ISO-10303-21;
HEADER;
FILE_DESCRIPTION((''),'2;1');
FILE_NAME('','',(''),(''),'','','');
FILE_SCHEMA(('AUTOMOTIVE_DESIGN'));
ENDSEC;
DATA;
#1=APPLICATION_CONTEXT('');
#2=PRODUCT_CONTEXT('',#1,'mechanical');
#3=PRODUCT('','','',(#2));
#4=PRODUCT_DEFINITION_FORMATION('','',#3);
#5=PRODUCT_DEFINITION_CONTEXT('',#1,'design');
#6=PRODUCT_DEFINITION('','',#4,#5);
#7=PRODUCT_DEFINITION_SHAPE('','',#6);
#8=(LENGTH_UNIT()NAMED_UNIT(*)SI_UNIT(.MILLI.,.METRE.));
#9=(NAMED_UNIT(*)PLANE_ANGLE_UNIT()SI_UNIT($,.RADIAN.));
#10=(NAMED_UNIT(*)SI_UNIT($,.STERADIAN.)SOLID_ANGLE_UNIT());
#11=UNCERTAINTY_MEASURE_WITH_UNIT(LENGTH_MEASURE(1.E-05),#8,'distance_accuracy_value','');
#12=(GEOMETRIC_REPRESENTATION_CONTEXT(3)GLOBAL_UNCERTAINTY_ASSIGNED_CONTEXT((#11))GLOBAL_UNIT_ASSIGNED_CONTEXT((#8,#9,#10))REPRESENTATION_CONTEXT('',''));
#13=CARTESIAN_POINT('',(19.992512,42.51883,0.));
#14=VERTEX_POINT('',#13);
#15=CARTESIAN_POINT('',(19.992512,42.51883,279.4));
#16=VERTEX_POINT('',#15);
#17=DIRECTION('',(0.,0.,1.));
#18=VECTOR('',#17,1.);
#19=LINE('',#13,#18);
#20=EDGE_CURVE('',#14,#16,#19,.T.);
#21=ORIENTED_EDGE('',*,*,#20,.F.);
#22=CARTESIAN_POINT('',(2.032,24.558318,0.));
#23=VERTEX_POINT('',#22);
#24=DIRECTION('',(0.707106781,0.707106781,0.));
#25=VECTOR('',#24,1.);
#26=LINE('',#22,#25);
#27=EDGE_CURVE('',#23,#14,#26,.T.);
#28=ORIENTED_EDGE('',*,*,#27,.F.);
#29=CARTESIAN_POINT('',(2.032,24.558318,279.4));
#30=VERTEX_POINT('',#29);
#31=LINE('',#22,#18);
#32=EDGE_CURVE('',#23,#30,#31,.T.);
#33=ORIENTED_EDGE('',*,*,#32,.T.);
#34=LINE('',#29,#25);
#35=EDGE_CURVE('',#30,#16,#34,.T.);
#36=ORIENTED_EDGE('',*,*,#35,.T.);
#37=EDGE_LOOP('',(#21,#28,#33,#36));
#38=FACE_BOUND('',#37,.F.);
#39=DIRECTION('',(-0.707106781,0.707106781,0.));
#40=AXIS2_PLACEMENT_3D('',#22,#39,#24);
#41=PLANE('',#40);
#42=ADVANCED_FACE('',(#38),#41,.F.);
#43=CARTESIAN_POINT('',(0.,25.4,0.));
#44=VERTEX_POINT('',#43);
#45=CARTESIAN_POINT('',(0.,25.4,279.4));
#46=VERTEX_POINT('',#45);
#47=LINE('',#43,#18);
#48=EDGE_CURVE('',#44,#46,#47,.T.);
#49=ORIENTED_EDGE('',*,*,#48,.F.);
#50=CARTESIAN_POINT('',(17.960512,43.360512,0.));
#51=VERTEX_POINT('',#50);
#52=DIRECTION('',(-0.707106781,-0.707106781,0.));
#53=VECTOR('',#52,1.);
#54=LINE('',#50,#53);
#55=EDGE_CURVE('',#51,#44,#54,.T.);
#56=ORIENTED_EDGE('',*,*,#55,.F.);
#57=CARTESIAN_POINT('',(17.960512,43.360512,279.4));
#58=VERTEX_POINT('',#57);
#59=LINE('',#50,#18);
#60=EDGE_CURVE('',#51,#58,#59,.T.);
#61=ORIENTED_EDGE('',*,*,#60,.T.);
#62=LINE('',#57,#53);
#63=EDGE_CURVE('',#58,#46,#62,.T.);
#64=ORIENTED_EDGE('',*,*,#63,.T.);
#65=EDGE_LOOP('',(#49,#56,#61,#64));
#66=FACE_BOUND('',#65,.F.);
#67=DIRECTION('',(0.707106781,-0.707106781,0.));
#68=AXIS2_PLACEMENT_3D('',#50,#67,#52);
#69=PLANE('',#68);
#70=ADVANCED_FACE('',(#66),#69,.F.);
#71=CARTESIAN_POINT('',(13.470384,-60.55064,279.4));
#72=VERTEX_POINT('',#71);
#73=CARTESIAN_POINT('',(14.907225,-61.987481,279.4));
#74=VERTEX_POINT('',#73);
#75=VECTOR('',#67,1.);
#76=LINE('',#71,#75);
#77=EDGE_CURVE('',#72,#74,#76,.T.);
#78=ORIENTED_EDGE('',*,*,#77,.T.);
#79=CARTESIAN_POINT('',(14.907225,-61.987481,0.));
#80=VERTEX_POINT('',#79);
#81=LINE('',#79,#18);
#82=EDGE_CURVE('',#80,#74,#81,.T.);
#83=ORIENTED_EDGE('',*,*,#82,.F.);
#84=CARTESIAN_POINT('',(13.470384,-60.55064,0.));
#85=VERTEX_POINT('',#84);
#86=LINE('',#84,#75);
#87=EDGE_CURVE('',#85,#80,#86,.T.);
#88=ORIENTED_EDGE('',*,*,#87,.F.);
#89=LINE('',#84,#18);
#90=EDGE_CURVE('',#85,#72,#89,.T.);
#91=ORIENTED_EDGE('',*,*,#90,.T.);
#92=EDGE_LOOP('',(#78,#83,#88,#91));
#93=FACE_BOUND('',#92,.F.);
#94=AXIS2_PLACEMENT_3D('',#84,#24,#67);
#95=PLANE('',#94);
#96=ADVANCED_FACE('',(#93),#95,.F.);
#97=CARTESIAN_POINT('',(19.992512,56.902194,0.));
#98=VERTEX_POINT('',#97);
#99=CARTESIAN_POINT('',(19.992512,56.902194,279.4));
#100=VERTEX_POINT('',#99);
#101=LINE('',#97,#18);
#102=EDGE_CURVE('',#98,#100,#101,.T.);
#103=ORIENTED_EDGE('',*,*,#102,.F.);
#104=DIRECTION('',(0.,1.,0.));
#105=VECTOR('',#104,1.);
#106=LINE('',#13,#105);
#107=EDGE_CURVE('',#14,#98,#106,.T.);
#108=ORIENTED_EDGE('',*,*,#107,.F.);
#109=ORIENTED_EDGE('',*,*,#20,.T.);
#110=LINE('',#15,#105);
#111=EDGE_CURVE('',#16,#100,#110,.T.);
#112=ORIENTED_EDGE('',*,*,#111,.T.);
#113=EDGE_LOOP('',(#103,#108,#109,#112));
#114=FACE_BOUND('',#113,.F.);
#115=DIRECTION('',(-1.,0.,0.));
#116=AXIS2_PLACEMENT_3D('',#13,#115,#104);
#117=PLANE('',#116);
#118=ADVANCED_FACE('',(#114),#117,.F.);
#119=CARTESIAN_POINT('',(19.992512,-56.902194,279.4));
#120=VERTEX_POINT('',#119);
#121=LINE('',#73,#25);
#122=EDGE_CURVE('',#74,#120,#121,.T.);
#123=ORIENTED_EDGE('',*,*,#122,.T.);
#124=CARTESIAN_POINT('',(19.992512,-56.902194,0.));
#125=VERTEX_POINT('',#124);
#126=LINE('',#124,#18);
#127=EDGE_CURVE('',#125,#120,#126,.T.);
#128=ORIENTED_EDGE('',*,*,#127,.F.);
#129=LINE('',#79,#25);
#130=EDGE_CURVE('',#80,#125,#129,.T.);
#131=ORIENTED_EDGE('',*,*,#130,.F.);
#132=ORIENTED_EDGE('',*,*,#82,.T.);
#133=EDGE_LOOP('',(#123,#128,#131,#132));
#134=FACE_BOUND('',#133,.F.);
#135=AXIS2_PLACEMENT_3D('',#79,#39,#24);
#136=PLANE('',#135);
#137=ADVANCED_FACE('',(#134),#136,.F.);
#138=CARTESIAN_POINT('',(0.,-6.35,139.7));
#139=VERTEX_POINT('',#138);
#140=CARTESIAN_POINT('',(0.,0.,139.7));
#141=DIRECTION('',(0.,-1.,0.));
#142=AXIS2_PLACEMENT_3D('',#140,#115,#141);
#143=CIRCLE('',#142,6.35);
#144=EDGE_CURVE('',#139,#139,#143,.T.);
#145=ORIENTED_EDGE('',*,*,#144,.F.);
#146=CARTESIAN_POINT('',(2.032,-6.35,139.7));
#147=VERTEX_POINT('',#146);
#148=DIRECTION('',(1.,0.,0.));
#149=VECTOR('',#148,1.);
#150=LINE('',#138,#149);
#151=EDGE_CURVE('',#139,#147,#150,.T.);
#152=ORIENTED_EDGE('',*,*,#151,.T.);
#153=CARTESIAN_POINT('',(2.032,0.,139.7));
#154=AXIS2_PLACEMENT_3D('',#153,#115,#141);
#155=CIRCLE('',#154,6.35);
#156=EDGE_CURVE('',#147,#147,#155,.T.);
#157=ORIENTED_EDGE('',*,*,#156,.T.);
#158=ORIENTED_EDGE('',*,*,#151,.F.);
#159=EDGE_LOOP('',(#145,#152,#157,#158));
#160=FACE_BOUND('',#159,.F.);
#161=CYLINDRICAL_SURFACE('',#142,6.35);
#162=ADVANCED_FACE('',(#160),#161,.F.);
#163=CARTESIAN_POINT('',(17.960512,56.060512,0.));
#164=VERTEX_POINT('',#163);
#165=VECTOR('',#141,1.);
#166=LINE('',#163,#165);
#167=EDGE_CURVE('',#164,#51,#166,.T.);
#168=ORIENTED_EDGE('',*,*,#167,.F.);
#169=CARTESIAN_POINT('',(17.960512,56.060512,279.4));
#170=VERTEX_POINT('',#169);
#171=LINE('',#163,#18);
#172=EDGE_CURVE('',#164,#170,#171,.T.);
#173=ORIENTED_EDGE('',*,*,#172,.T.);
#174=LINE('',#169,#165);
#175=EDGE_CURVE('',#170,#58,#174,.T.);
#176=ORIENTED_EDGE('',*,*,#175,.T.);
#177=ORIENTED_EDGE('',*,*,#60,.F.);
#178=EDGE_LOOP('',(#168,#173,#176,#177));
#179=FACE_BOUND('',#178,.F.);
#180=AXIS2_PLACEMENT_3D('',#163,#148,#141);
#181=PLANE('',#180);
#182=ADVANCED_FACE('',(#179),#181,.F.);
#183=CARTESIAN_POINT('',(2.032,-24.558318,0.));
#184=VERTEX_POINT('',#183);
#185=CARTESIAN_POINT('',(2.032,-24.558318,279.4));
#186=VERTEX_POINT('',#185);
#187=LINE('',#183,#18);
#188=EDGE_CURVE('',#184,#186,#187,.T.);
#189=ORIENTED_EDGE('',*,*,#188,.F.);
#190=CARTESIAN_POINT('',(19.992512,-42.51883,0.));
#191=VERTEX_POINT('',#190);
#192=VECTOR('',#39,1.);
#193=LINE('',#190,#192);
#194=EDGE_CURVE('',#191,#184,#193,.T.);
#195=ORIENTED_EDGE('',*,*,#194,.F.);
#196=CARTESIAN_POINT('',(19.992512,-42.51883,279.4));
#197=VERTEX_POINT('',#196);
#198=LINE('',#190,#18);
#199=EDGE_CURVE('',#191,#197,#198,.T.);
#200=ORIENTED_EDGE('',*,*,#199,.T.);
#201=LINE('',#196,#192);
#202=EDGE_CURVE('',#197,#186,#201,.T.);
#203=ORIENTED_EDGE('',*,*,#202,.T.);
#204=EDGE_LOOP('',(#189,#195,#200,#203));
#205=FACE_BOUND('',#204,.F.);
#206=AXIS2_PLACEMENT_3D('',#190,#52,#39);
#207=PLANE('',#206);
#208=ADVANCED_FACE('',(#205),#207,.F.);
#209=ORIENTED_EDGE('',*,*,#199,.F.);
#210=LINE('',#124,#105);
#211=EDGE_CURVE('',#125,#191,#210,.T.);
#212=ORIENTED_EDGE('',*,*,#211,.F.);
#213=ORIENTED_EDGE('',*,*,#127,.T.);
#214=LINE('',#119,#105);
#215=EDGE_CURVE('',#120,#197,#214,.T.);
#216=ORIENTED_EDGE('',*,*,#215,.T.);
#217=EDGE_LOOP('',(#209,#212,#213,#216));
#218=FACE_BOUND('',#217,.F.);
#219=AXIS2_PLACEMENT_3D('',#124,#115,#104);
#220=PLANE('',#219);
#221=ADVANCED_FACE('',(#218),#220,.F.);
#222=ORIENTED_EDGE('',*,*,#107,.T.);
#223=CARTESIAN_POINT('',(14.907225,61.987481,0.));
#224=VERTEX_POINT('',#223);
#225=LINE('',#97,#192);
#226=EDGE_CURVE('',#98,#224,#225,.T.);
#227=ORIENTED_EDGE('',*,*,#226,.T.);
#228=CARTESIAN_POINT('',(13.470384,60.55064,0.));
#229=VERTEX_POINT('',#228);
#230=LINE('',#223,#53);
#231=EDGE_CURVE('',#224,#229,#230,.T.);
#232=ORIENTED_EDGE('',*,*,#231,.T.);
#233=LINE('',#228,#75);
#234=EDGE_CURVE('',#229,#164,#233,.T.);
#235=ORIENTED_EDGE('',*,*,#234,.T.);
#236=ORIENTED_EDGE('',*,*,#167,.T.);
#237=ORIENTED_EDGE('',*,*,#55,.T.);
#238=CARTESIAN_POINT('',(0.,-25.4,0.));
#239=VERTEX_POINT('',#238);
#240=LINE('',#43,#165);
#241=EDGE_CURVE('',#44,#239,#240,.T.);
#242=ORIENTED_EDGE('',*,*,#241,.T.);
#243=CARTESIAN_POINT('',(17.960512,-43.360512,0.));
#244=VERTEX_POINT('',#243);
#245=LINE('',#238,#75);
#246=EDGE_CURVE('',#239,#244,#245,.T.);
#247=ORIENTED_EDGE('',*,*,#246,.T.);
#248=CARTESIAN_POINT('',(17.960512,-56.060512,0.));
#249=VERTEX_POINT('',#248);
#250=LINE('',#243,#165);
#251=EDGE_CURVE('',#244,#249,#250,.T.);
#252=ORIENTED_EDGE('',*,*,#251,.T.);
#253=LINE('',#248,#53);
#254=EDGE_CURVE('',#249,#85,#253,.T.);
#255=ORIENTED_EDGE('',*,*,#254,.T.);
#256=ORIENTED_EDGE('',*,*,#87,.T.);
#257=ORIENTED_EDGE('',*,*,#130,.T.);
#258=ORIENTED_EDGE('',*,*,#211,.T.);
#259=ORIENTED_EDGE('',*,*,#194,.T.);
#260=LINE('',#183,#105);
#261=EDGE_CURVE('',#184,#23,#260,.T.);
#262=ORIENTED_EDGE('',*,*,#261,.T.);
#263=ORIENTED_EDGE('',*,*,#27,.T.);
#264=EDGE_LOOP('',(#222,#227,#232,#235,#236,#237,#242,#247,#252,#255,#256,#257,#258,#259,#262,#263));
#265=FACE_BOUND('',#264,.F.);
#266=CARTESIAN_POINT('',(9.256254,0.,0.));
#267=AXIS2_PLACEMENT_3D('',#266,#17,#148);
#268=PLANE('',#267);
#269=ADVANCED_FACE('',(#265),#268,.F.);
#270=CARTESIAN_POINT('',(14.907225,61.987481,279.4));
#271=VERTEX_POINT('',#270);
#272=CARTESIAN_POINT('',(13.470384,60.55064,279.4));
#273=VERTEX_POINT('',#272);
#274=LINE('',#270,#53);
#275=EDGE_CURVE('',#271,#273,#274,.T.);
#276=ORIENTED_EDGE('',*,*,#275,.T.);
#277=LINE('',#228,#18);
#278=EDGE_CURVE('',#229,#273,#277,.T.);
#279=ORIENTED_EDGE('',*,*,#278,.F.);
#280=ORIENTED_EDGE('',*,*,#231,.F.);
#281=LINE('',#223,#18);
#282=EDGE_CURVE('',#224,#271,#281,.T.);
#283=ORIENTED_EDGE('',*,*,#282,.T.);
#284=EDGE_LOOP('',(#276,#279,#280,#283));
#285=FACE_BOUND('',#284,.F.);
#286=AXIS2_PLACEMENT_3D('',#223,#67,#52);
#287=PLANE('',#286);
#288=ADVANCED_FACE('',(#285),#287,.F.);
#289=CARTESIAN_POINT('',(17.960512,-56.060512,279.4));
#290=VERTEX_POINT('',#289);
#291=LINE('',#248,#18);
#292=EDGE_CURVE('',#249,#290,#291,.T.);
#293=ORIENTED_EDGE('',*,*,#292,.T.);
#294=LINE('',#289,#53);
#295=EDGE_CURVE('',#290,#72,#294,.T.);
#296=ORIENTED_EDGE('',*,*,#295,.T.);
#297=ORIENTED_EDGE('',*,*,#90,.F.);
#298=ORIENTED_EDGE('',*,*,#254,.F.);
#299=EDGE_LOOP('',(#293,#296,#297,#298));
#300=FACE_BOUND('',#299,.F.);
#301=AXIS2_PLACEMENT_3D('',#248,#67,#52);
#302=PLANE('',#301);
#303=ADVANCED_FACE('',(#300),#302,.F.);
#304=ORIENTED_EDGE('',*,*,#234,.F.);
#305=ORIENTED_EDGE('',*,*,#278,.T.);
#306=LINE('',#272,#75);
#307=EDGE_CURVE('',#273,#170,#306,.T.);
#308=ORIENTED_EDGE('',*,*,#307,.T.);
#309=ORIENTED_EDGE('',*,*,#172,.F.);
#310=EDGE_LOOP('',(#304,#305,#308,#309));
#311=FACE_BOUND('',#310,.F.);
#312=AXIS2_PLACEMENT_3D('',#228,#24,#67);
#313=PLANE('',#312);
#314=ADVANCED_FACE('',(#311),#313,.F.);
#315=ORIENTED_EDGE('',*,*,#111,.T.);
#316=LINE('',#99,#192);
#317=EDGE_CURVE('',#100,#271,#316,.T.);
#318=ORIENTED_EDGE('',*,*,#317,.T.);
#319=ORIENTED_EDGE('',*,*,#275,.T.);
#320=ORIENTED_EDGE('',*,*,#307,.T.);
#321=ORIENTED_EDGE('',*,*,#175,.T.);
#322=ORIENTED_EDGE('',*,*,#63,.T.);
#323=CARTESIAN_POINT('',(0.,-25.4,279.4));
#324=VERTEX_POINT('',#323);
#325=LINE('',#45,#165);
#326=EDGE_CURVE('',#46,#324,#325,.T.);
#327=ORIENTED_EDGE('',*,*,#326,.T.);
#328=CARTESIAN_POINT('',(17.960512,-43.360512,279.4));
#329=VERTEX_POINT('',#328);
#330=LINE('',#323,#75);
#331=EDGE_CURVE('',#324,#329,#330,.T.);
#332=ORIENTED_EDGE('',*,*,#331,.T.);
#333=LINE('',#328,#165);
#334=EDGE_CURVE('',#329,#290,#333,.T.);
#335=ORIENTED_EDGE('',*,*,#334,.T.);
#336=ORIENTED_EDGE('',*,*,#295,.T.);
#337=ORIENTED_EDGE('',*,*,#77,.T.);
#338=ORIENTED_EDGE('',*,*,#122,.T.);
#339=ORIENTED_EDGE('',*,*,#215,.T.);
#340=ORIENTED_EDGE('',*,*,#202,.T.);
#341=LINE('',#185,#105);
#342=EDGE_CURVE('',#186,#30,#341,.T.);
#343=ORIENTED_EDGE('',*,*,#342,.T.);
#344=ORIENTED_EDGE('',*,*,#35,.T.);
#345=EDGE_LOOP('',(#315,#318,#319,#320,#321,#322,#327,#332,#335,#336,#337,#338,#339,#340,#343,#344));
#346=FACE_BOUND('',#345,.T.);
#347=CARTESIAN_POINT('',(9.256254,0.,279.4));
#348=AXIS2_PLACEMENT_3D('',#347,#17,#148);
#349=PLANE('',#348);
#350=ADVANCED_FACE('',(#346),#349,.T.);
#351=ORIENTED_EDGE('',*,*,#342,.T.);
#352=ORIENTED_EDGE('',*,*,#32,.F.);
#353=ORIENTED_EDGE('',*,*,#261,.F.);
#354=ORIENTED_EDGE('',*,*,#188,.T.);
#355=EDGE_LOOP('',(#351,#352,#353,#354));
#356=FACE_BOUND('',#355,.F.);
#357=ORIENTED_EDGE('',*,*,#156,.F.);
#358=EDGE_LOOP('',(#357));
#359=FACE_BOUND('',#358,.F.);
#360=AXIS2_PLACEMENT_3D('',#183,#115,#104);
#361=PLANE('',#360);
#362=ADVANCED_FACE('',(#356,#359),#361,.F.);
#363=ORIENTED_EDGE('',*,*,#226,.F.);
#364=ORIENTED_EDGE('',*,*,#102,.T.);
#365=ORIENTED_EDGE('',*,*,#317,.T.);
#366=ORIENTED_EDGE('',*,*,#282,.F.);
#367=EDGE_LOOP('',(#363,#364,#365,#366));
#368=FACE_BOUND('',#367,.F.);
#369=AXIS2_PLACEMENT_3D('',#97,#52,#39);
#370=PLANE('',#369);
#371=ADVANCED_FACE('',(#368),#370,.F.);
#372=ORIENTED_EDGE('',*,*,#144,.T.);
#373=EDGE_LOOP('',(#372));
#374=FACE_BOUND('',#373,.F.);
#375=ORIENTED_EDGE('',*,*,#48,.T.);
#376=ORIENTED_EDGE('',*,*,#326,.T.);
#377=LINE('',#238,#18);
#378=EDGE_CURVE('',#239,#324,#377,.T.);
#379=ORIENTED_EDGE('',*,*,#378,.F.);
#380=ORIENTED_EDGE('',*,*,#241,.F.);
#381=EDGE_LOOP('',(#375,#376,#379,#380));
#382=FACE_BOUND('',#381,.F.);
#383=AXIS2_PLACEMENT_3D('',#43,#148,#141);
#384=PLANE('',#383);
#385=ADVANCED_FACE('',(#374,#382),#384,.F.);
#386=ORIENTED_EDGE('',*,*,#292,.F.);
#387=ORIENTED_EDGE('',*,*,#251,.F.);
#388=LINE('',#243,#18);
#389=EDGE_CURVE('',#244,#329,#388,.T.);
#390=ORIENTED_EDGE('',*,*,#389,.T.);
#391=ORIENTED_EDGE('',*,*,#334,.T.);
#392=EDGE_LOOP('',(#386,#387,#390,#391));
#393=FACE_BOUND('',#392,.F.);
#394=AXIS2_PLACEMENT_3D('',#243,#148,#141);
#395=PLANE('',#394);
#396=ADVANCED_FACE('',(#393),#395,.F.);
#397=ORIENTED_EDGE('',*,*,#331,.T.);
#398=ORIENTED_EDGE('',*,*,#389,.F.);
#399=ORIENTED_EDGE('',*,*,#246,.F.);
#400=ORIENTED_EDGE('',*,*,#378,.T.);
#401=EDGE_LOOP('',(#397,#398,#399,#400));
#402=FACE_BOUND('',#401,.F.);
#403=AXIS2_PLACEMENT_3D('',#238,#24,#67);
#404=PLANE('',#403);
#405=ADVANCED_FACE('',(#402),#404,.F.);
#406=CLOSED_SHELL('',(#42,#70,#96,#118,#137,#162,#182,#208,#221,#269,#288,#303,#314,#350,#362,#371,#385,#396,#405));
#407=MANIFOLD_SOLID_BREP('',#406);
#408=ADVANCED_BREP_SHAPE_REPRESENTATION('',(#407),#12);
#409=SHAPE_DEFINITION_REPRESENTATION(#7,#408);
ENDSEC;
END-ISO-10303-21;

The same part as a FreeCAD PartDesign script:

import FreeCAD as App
import Part
import Sketcher
Q = App.Units.Quantity

doc = App.newDocument("Part")
body = doc.addObject("PartDesign::Body", "Body")

# Sketch on XY plane
sketch1 = doc.addObject("Sketcher::SketchObject", "Sketch")
body.addObject(sketch1)
sketch1.AttachmentSupport = (doc.XY_Plane, [""])
sketch1.MapMode = "FlatFace"
sketch1.addGeometry(Part.LineSegment(App.Vector(0, 25.4, 0), App.Vector(0, -25.4, 0)), False)
sketch1.addGeometry(Part.LineSegment(App.Vector(0, -25.4, 0), App.Vector(18, -43.4, 0)), False)
sketch1.addGeometry(Part.LineSegment(App.Vector(18, -43.4, 0), App.Vector(18, -56.1, 0)), False)
sketch1.addGeometry(Part.LineSegment(App.Vector(18, -56.1, 0), App.Vector(13.5, -60.6, 0)), False)
sketch1.addGeometry(Part.LineSegment(App.Vector(13.5, -60.6, 0), App.Vector(14.9, -62, 0)), False)
sketch1.addGeometry(Part.LineSegment(App.Vector(14.9, -62, 0), App.Vector(20, -56.9, 0)), False)
sketch1.addGeometry(Part.LineSegment(App.Vector(20, -56.9, 0), App.Vector(20, -42.5, 0)), False)
sketch1.addGeometry(Part.LineSegment(App.Vector(20, -42.5, 0), App.Vector(2, -24.6, 0)), False)
sketch1.addGeometry(Part.LineSegment(App.Vector(2, -24.6, 0), App.Vector(2, 24.6, 0)), False)
sketch1.addGeometry(Part.LineSegment(App.Vector(2, 24.6, 0), App.Vector(20, 42.5, 0)), False)
sketch1.addGeometry(Part.LineSegment(App.Vector(20, 42.5, 0), App.Vector(20, 56.9, 0)), False)
sketch1.addGeometry(Part.LineSegment(App.Vector(20, 56.9, 0), App.Vector(14.9, 62, 0)), False)
sketch1.addGeometry(Part.LineSegment(App.Vector(14.9, 62, 0), App.Vector(13.5, 60.6, 0)), False)
sketch1.addGeometry(Part.LineSegment(App.Vector(13.5, 60.6, 0), App.Vector(18, 56.1, 0)), False)
sketch1.addGeometry(Part.LineSegment(App.Vector(18, 56.1, 0), App.Vector(18, 43.4, 0)), False)
sketch1.addGeometry(Part.LineSegment(App.Vector(18, 43.4, 0), App.Vector(0, 25.4, 0)), False)
sketch1.addConstraint(Sketcher.Constraint("Coincident", 0, 2, 1, 1))
sketch1.addConstraint(Sketcher.Constraint("Coincident", 1, 2, 2, 1))
sketch1.addConstraint(Sketcher.Constraint("Coincident", 2, 2, 3, 1))
sketch1.addConstraint(Sketcher.Constraint("Coincident", 3, 2, 4, 1))
sketch1.addConstraint(Sketcher.Constraint("Coincident", 4, 2, 5, 1))
sketch1.addConstraint(Sketcher.Constraint("Coincident", 5, 2, 6, 1))
sketch1.addConstraint(Sketcher.Constraint("Coincident", 6, 2, 7, 1))
sketch1.addConstraint(Sketcher.Constraint("Coincident", 7, 2, 8, 1))
sketch1.addConstraint(Sketcher.Constraint("Coincident", 8, 2, 9, 1))
sketch1.addConstraint(Sketcher.Constraint("Coincident", 9, 2, 10, 1))
sketch1.addConstraint(Sketcher.Constraint("Coincident", 10, 2, 11, 1))
sketch1.addConstraint(Sketcher.Constraint("Coincident", 11, 2, 12, 1))
sketch1.addConstraint(Sketcher.Constraint("Coincident", 12, 2, 13, 1))
sketch1.addConstraint(Sketcher.Constraint("Coincident", 13, 2, 14, 1))
sketch1.addConstraint(Sketcher.Constraint("Coincident", 14, 2, 15, 1))
sketch1.addConstraint(Sketcher.Constraint("Coincident", 15, 2, 0, 1))
sketch1.addConstraint(Sketcher.Constraint("Vertical", 0))
sketch1.addConstraint(Sketcher.Constraint("Vertical", 2))
sketch1.addConstraint(Sketcher.Constraint("Vertical", 6))
sketch1.addConstraint(Sketcher.Constraint("Vertical", 8))
sketch1.addConstraint(Sketcher.Constraint("Vertical", 10))
sketch1.addConstraint(Sketcher.Constraint("Vertical", 14))
sketch1.addConstraint(Sketcher.Constraint("Symmetric", 0, 2, 15, 2, -1, 1))
sketch1.addConstraint(Sketcher.Constraint("Symmetric", 6, 2, 9, 2, -1))
sketch1.addConstraint(Sketcher.Constraint("Symmetric", 4, 2, 11, 2, -1))
sketch1.addConstraint(Sketcher.Constraint("Symmetric", 3, 2, 12, 2, -1))
sketch1.addConstraint(Sketcher.Constraint("Symmetric", 2, 2, 13, 2, -1))
sketch1.addConstraint(Sketcher.Constraint("Perpendicular", 1, 3))
sketch1.addConstraint(Sketcher.Constraint("Perpendicular", 3, 4))
sketch1.addConstraint(Sketcher.Constraint("Perpendicular", 4, 5))
sketch1.addConstraint(Sketcher.Constraint("Perpendicular", 5, 7))
sketch1.addConstraint(Sketcher.Constraint("Perpendicular", 7, 9))
sketch1.addConstraint(Sketcher.Constraint("Perpendicular", 9, 11))
sketch1.addConstraint(Sketcher.Constraint("Perpendicular", 11, 12))
sketch1.addConstraint(Sketcher.Constraint("Perpendicular", 13, 15))
sketch1.addConstraint(Sketcher.Constraint("Equal", 1, 7))
sketch1.addConstraint(Sketcher.Constraint("DistanceY", 0, 2, 0, 1, Q("2 in")))
sketch1.addConstraint(Sketcher.Constraint("Distance", 1, Q("1 in")))
sketch1.addConstraint(Sketcher.Constraint("DistanceY", 2, 2, 2, 1, Q("0.5 in")))
sketch1.addConstraint(Sketcher.Constraint("Distance", 3, Q("0.25 in")))
sketch1.addConstraint(Sketcher.Constraint("Distance", 4, Q("0.08 in")))
sketch1.addConstraint(Sketcher.Constraint("DistanceX", -1, 1, 7, 2, Q("0.08 in")))
sketch1.addConstraint(Sketcher.Constraint("DistanceY", 7, 2, 11, 2, 86.545799))
pad1 = doc.addObject("PartDesign::Pad", "Pad")
body.addObject(pad1)
pad1.Profile = sketch1
pad1.Length = Q("11 in")

# Sketch on YZ plane
sketch2 = doc.addObject("Sketcher::SketchObject", "Sketch001")
body.addObject(sketch2)
sketch2.AttachmentSupport = (doc.YZ_Plane, [""])
sketch2.MapMode = "FlatFace"
sketch2.addGeometry(Part.Circle(App.Vector(0, 140, 0), App.Vector(0, 0, 1), 6), False)
sketch2.addConstraint(Sketcher.Constraint("PointOnObject", 0, 3, -2))
sketch2.addConstraint(Sketcher.Constraint("Diameter", 0, Q("0.5 in")))
sketch2.addConstraint(Sketcher.Constraint("DistanceY", -1, 1, 0, 3, Q("5.5 in")))
pocket1 = doc.addObject("PartDesign::Pocket", "Pocket")
body.addObject(pocket1)
pocket1.Profile = sketch2
pocket1.Length = Q("1 in")
pocket1.Reversed = True

doc.recompute()
